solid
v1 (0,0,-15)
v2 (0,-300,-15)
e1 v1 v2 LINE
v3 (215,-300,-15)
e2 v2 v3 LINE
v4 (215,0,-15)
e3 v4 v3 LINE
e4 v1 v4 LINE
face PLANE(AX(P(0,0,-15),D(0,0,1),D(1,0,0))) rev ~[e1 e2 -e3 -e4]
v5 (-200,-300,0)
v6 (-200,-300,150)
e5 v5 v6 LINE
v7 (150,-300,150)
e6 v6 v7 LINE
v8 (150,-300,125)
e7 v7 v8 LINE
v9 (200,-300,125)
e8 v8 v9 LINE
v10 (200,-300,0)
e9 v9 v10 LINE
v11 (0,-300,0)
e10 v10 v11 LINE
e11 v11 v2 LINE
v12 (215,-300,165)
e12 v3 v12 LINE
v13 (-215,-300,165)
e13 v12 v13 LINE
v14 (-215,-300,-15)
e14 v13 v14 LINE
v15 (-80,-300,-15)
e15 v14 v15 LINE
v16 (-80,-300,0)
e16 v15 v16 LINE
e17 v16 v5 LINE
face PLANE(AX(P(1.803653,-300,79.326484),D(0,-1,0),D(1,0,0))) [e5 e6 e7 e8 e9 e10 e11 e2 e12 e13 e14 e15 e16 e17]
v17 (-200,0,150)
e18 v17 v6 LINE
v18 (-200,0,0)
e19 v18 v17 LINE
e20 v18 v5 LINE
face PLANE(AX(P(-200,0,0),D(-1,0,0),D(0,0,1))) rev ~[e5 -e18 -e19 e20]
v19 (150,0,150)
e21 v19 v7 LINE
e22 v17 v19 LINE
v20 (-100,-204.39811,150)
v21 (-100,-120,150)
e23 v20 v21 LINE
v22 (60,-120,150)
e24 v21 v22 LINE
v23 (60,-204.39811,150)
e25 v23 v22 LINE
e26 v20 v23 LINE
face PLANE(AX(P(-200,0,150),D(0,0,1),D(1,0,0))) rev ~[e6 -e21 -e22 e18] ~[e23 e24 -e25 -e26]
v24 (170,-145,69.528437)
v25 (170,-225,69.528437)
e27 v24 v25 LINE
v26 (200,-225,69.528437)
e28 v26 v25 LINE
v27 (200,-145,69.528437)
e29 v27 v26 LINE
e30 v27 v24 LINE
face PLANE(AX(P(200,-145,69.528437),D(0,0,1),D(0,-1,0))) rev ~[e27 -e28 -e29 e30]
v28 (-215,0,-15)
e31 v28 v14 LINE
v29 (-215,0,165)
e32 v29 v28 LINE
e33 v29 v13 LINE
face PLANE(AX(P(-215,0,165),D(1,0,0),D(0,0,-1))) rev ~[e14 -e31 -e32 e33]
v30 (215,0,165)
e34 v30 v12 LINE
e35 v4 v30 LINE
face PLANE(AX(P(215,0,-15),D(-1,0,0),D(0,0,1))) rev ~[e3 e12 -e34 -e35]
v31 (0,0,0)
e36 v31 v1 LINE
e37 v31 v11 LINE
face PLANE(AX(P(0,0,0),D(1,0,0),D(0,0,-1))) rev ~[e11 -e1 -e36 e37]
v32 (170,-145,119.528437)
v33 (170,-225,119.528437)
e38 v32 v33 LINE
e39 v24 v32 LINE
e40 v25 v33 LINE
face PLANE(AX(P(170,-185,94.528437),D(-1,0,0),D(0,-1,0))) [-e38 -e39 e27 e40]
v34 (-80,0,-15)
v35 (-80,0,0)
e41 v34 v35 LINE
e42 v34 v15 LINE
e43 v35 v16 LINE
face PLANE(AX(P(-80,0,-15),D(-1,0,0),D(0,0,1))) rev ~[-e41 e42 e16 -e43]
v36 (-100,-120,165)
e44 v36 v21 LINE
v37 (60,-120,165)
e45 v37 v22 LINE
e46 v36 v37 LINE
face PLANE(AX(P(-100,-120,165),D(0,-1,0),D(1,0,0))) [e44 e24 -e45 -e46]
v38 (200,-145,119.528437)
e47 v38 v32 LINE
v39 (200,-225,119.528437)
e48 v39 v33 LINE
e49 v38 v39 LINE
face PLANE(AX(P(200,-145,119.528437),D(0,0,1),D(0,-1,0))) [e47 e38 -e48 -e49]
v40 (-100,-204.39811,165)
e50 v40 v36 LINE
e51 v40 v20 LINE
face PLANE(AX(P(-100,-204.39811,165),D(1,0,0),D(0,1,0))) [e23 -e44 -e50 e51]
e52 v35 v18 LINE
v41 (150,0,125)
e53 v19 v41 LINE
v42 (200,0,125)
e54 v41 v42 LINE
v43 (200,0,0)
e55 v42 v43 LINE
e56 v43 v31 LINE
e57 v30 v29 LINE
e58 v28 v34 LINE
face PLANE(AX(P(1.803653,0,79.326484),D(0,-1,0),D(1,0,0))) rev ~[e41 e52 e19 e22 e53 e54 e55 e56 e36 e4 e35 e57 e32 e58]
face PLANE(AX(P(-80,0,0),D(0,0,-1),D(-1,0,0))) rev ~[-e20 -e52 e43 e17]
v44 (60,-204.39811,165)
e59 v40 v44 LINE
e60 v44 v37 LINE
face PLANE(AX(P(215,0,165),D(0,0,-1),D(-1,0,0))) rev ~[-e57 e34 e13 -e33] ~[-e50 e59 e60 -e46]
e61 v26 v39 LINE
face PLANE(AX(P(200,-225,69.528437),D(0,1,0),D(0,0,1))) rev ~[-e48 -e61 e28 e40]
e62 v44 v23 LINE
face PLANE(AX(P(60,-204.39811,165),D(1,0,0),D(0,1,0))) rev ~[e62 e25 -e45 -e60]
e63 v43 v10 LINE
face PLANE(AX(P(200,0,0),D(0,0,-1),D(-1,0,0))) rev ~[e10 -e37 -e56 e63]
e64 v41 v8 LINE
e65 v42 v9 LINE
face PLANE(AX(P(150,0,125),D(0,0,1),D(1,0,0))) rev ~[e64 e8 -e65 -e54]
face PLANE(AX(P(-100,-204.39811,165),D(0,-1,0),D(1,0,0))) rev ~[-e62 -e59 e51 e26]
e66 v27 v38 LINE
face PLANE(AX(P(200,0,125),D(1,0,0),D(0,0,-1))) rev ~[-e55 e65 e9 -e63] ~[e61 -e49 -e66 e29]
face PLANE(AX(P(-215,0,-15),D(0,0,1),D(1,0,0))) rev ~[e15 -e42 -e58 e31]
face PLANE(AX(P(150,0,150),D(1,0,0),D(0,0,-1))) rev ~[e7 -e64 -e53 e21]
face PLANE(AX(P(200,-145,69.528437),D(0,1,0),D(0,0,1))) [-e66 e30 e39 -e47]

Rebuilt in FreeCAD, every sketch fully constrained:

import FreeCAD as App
import Part
import Sketcher
Q = App.Units.Quantity


def add_polygon(sketch, points):
    """Adds a closed chain of lines whose ends are joined by coincident constraints."""
    first, n = sketch.GeometryCount, len(points)
    for a, b in zip(points, points[1:] + points[:1]):
        sketch.addGeometry(Part.LineSegment(App.Vector(*a, 0), App.Vector(*b, 0)), False)
    for i in range(n):
        sketch.addConstraint(Sketcher.Constraint("Coincident", first + i, 2, first + (i + 1) % n, 1))

doc = App.newDocument("Part")
body = doc.addObject("PartDesign::Body", "Body")

# Sketch on XZ plane
sketch1 = doc.addObject("Sketcher::SketchObject", "Sketch")
body.addObject(sketch1)
sketch1.AttachmentSupport = (doc.XZ_Plane, [""])
sketch1.MapMode = "FlatFace"
add_polygon(sketch1, [(-80, -15), (-80, 0), (-200, 0), (-200, 150), (150, 150), (150, 125), (200, 125), (200, 0), (0, 0), (0, -15), (215, -15), (215, 165), (-215, 165), (-215, -15)])  # lines 0-13
sketch1.addConstraint([
    Sketcher.Constraint("Vertical", 0),
    Sketcher.Constraint("Horizontal", 1),
    Sketcher.Constraint("Vertical", 2),
    Sketcher.Constraint("Horizontal", 3),
    Sketcher.Constraint("Vertical", 4),
    Sketcher.Constraint("Horizontal", 5),
    Sketcher.Constraint("Vertical", 6),
    Sketcher.Constraint("Horizontal", 7),
    Sketcher.Constraint("Vertical", 8),
    Sketcher.Constraint("Horizontal", 9),
    Sketcher.Constraint("Vertical", 10),
    Sketcher.Constraint("Horizontal", 11),
    Sketcher.Constraint("Vertical", 12),
    Sketcher.Constraint("Horizontal", 13),
    Sketcher.Constraint("Coincident", 7, 2, -1, 1),
    Sketcher.Constraint("Symmetric", 1, 2, 6, 2, -1, 1),
    Sketcher.Constraint("Symmetric", 9, 2, 12, 2, -2),
    Sketcher.Constraint("DistanceX", 1, 2, 1, 1, Q("120 mm")),
    Sketcher.Constraint("DistanceX", 3, 1, 3, 2, Q("350 mm")),
    Sketcher.Constraint("DistanceX", 5, 1, 5, 2, Q("50 mm")),
    Sketcher.Constraint("DistanceX", 9, 1, 9, 2, Q("215 mm")),
    Sketcher.Constraint("DistanceY", 0, 1, 0, 2, Q("15 mm")),
    Sketcher.Constraint("DistanceY", 2, 1, 2, 2, Q("150 mm")),
    Sketcher.Constraint("DistanceY", 4, 2, 4, 1, Q("25 mm")),
    Sketcher.Constraint("DistanceY", 10, 1, 10, 2, Q("180 mm")),
])
pad1 = doc.addObject("PartDesign::Pad", "Pad")
body.addObject(pad1)
pad1.Profile = sketch1
pad1.Length = 300

# Sketch on XY plane
sketch2 = doc.addObject("Sketcher::SketchObject", "Sketch001")
body.addObject(sketch2)
sketch2.AttachmentSupport = (doc.XY_Plane, [""])
sketch2.MapMode = "FlatFace"
sketch2.AttachmentOffset = App.Placement(App.Vector(0, 0, 165), App.Rotation())
add_polygon(sketch2, [(-100, -120), (-100, -204), (60, -204), (60, -120)])  # lines 0-3
sketch2.addConstraint([
    Sketcher.Constraint("Vertical", 0),
    Sketcher.Constraint("Horizontal", 1),
    Sketcher.Constraint("Vertical", 2),
    Sketcher.Constraint("Horizontal", 3),
    Sketcher.Constraint("DistanceX", 1, 1, 1, 2, Q("160 mm")),
    Sketcher.Constraint("DistanceX", 0, 2, -1, 1, Q("100 mm")),
    Sketcher.Constraint("DistanceY", 2, 2, -1, 1, Q("120 mm")),
    Sketcher.Constraint("DistanceY", 0, 2, 0, 1, Q("84.39811 mm")),
])
pocket1 = doc.addObject("PartDesign::Pocket", "Pocket")
body.addObject(pocket1)
pocket1.Profile = sketch2
pocket1.Length = 25

# Sketch on YZ plane
sketch3 = doc.addObject("Sketcher::SketchObject", "Sketch002")
body.addObject(sketch3)
sketch3.AttachmentSupport = (doc.YZ_Plane, [""])
sketch3.MapMode = "FlatFace"
sketch3.AttachmentOffset = App.Placement(App.Vector(0, 0, 200), App.Rotation())
add_polygon(sketch3, [(-145, 120), (-145, 70), (-225, 70), (-225, 120)])  # lines 0-3
sketch3.addConstraint([
    Sketcher.Constraint("Vertical", 0),
    Sketcher.Constraint("Horizontal", 1),
    Sketcher.Constraint("Vertical", 2),
    Sketcher.Constraint("Horizontal", 3),
    Sketcher.Constraint("DistanceX", 1, 2, 1, 1, Q("80 mm")),
    Sketcher.Constraint("DistanceY", 0, 2, 0, 1, Q("50 mm")),
    Sketcher.Constraint("DistanceX", 0, 2, -1, 1, Q("145 mm")),
    Sketcher.Constraint("DistanceY", -1, 1, 0, 2, Q("69.528437 mm")),
])
pad2 = doc.addObject("PartDesign::Pad", "Pad001")
body.addObject(pad2)
pad2.Profile = sketch3
pad2.Length = 30
pad2.Reversed = True

doc.recompute()
